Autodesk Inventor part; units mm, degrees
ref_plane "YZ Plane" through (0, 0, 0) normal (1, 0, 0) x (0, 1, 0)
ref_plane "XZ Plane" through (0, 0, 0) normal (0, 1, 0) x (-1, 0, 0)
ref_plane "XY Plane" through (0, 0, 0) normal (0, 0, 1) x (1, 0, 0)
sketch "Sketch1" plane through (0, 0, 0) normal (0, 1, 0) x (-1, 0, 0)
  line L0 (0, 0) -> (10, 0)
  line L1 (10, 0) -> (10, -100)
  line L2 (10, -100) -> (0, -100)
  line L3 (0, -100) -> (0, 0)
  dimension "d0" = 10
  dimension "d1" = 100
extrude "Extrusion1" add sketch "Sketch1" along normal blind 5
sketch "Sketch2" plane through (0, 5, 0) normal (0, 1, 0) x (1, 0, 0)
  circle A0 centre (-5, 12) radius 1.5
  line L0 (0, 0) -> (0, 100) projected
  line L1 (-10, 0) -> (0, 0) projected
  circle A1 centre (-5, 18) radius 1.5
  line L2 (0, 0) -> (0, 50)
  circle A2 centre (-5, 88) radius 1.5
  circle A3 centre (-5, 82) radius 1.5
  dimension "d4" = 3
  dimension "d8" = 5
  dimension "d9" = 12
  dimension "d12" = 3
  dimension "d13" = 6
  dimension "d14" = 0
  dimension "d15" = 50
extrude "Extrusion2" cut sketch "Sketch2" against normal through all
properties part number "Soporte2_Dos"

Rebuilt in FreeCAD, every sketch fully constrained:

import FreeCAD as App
import Part
import Sketcher

V = App.Vector
Q = App.Units.Quantity

doc = App.newDocument("Part")
body = doc.addObject("PartDesign::Body", "Body")

sketch1 = body.newObject("Sketcher::SketchObject", "Sketch")
sketch1.AttachmentSupport = (doc.getObject("XZ_Plane"), [""])
sketch1.MapMode = "FlatFace"
sketch1.addGeometry([
    Part.LineSegment(V(-10, 0, 0), V(0, 0, 0)),
    Part.LineSegment(V(0, 0, 0), V(0, -100, 0)),
    Part.LineSegment(V(0, -100, 0), V(-10, -100, 0)),
    Part.LineSegment(V(-10, -100, 0), V(-10, 0, 0)),
], False)
sketch1.addConstraint([
    Sketcher.Constraint("Coincident", 0, 2, 1, 1),
    Sketcher.Constraint("Coincident", 1, 2, 2, 1),
    Sketcher.Constraint("Coincident", 2, 2, 3, 1),
    Sketcher.Constraint("Coincident", 3, 2, 0, 1),
    Sketcher.Constraint("Horizontal", 0),
    Sketcher.Constraint("Vertical", 1),
    Sketcher.Constraint("Horizontal", 2),
    Sketcher.Constraint("Vertical", 3),
    Sketcher.Constraint("Coincident", 0, 2, -1, 1),
    Sketcher.Constraint("DistanceX", 0, 1, 0, 2, Q("10 mm")),
    Sketcher.Constraint("DistanceY", 1, 2, 1, 1, Q("100 mm")),
])
pad1 = body.newObject("PartDesign::Pad", "Pad")
pad1.Profile = sketch1
pad1.Length = 5
pad1.Reversed = True

sketch2 = body.newObject("Sketcher::SketchObject", "Sketch001")
sketch2.AttachmentSupport = (doc.getObject("XZ_Plane"), [""])
sketch2.MapMode = "FlatFace"
sketch2.AttachmentOffset = App.Placement(V(0, 0, -5), App.Rotation())
sketch2.addGeometry([
    Part.Circle(V(-5, -12, 0), V(0, 0, 1), 1.5),
    Part.Circle(V(-5, -18, 0), V(0, 0, 1), 1.5),
    Part.Circle(V(-5, -88, 0), V(0, 0, 1), 1.5),
    Part.Circle(V(-5, -82, 0), V(0, 0, 1), 1.5),
], False)
sketch2.addConstraint([
    Sketcher.Constraint("Equal", 0, 1),
    Sketcher.Constraint("Equal", 1, 2),
    Sketcher.Constraint("Equal", 2, 3),
    Sketcher.Constraint("Vertical", 0, 3, 1, 3),
    Sketcher.Constraint("Vertical", 1, 3, 2, 3),
    Sketcher.Constraint("Vertical", 2, 3, 3, 3),
    Sketcher.Constraint("Diameter", 0, Q("3 mm")),
    Sketcher.Constraint("DistanceX", 0, 3, -1, 1, Q("5 mm")),
    Sketcher.Constraint("DistanceY", 0, 3, -1, 1, Q("12 mm")),
    Sketcher.Constraint("DistanceY", 1, 3, 0, 3, Q("6 mm")),
    Sketcher.Constraint("DistanceY", 2, 3, 3, 3, Q("6 mm")),
    Sketcher.Constraint("DistanceY", 2, 3, -1, 1, Q("88 mm")),
])
pocket1 = body.newObject("PartDesign::Pocket", "Pocket")
pocket1.Profile = sketch2
pocket1.Type = "ThroughAll"
pocket1.Reversed = True

doc.recompute()
